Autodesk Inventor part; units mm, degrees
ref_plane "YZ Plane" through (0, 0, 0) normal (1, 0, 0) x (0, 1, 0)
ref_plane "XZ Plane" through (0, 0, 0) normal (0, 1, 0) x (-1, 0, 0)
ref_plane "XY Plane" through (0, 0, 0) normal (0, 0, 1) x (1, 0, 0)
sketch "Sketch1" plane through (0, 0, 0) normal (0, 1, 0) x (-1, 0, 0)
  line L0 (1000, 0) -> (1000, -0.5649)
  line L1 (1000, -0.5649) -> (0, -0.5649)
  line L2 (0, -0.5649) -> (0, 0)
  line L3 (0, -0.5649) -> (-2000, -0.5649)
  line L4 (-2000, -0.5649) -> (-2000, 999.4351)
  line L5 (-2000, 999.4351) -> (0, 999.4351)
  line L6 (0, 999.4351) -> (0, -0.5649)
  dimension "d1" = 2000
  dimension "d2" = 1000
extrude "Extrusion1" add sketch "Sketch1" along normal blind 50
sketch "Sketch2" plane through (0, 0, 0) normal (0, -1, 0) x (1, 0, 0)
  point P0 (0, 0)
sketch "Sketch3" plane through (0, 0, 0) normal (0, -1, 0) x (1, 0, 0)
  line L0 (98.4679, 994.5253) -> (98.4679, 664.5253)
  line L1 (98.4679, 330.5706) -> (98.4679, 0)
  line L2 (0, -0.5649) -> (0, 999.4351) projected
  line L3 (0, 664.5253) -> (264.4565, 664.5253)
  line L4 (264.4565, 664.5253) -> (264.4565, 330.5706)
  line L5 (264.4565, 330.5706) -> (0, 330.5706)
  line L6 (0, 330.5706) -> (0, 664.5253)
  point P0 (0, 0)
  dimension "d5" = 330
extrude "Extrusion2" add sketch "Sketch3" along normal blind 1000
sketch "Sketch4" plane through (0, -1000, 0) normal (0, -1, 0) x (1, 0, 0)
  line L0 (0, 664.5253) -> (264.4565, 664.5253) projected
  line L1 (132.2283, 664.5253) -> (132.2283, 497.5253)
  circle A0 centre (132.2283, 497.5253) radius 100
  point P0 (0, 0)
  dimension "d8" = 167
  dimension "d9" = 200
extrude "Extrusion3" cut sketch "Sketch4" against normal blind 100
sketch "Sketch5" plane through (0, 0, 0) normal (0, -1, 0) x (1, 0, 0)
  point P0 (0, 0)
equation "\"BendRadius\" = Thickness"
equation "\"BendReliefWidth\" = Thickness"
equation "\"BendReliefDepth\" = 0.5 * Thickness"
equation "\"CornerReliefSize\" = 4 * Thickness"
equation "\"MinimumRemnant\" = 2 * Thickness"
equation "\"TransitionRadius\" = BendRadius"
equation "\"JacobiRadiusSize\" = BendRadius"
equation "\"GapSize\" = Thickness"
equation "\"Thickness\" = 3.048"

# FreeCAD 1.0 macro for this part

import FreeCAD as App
import Part
import Sketcher
from FreeCAD import Vector

doc = App.newDocument("Part")
params = doc.addObject("Spreadsheet::Sheet", "Params")
for row, (alias, value) in enumerate([
    ("sketch1_width", "2000 mm"),
    ("sketch1_height", "1000 mm"),
    ("pad1_length", "50 mm"),
    ("pad2_length", "1000 mm"),
    ("sketch3_diameter", "200 mm"),
    ("pocket1_length", "100 mm"),
], start=1):
    params.set(f"A{row}", alias)
    params.set(f"B{row}", "=" + value)
    params.setAlias(f"B{row}", alias)

body = doc.addObject("PartDesign::Body", "Body")

# Sketch on XZ plane
sketch1 = body.newObject("Sketcher::SketchObject", "Sketch")
sketch1.AttachmentSupport = (doc.getObject("XZ_Plane"), [""])
sketch1.MapMode = "FlatFace"
sketch1.addGeometry(Part.LineSegment(Vector(2000, -1, 0), Vector(0, -1, 0)), False)
sketch1.addGeometry(Part.LineSegment(Vector(0, -1, 0), Vector(0, 999, 0)), False)
sketch1.addGeometry(Part.LineSegment(Vector(0, 999, 0), Vector(2000, 999, 0)), False)
sketch1.addGeometry(Part.LineSegment(Vector(2000, 999, 0), Vector(2000, -1, 0)), False)
sketch1.addConstraint(Sketcher.Constraint("Coincident", 0, 2, 1, 1))
sketch1.addConstraint(Sketcher.Constraint("Coincident", 1, 2, 2, 1))
sketch1.addConstraint(Sketcher.Constraint("Coincident", 2, 2, 3, 1))
sketch1.addConstraint(Sketcher.Constraint("Coincident", 3, 2, 0, 1))
sketch1.addConstraint(Sketcher.Constraint("Horizontal", 0))
sketch1.addConstraint(Sketcher.Constraint("Vertical", 1))
sketch1.addConstraint(Sketcher.Constraint("Horizontal", 2))
sketch1.addConstraint(Sketcher.Constraint("Vertical", 3))
sketch1.addConstraint(Sketcher.Constraint("PointOnObject", 0, 2, -2))
sketch1.addConstraint(Sketcher.Constraint("DistanceX", 0, 2, 0, 1, 2000.0))
sketch1.addConstraint(Sketcher.Constraint("DistanceY", 1, 1, 1, 2, 1000.0))
sketch1.addConstraint(Sketcher.Constraint("DistanceY", 0, 2, -1, 1, 0.565))
sketch1.setExpression("Constraints[9]", "Params.sketch1_width")
sketch1.setExpression("Constraints[10]", "Params.sketch1_height")
pad1 = body.newObject("PartDesign::Pad", "Pad")
pad1.Profile = sketch1
pad1.setExpression("Length", "Params.pad1_length")
pad1.Reversed = True

# Sketch on XZ plane
sketch2 = body.newObject("Sketcher::SketchObject", "Sketch001")
sketch2.AttachmentSupport = (doc.getObject("XZ_Plane"), [""])
sketch2.MapMode = "FlatFace"
sketch2.addGeometry(Part.LineSegment(Vector(0, 665, 0), Vector(0, 331, 0)), False)
sketch2.addGeometry(Part.LineSegment(Vector(0, 331, 0), Vector(264, 331, 0)), False)
sketch2.addGeometry(Part.LineSegment(Vector(264, 331, 0), Vector(264, 665, 0)), False)
sketch2.addGeometry(Part.LineSegment(Vector(264, 665, 0), Vector(0, 665, 0)), False)
sketch2.addConstraint(Sketcher.Constraint("Coincident", 0, 2, 1, 1))
sketch2.addConstraint(Sketcher.Constraint("Coincident", 1, 2, 2, 1))
sketch2.addConstraint(Sketcher.Constraint("Coincident", 2, 2, 3, 1))
sketch2.addConstraint(Sketcher.Constraint("Coincident", 3, 2, 0, 1))
sketch2.addConstraint(Sketcher.Constraint("Vertical", 0))
sketch2.addConstraint(Sketcher.Constraint("Horizontal", 1))
sketch2.addConstraint(Sketcher.Constraint("Vertical", 2))
sketch2.addConstraint(Sketcher.Constraint("Horizontal", 3))
sketch2.addConstraint(Sketcher.Constraint("PointOnObject", 0, 2, -2))
sketch2.addConstraint(Sketcher.Constraint("DistanceX", 1, 1, 1, 2, 264.4565))
sketch2.addConstraint(Sketcher.Constraint("DistanceY", 0, 2, 0, 1, 333.9547))
sketch2.addConstraint(Sketcher.Constraint("DistanceY", -1, 1, 0, 2, 330.5706))
pad2 = body.newObject("PartDesign::Pad", "Pad001")
pad2.Profile = sketch2
pad2.setExpression("Length", "Params.pad2_length")

# Sketch on XZ plane
sketch3 = body.newObject("Sketcher::SketchObject", "Sketch002")
sketch3.AttachmentSupport = (doc.getObject("XZ_Plane"), [""])
sketch3.MapMode = "FlatFace"
sketch3.AttachmentOffset = App.Placement(Vector(0, 0, 1000), App.Rotation())
sketch3.addGeometry(Part.Circle(Vector(132, 498, 0), Vector(0, 0, 1), 100), False)
sketch3.addConstraint(Sketcher.Constraint("Diameter", 0, 200.0))
sketch3.addConstraint(Sketcher.Constraint("DistanceX", -1, 1, 0, 3, 132.2283))
sketch3.addConstraint(Sketcher.Constraint("DistanceY", -1, 1, 0, 3, 497.5253))
sketch3.setExpression("Constraints[0]", "Params.sketch3_diameter")
pocket1 = body.newObject("PartDesign::Pocket", "Pocket")
pocket1.Profile = sketch3
pocket1.setExpression("Length", "Params.pocket1_length")

doc.recompute()
